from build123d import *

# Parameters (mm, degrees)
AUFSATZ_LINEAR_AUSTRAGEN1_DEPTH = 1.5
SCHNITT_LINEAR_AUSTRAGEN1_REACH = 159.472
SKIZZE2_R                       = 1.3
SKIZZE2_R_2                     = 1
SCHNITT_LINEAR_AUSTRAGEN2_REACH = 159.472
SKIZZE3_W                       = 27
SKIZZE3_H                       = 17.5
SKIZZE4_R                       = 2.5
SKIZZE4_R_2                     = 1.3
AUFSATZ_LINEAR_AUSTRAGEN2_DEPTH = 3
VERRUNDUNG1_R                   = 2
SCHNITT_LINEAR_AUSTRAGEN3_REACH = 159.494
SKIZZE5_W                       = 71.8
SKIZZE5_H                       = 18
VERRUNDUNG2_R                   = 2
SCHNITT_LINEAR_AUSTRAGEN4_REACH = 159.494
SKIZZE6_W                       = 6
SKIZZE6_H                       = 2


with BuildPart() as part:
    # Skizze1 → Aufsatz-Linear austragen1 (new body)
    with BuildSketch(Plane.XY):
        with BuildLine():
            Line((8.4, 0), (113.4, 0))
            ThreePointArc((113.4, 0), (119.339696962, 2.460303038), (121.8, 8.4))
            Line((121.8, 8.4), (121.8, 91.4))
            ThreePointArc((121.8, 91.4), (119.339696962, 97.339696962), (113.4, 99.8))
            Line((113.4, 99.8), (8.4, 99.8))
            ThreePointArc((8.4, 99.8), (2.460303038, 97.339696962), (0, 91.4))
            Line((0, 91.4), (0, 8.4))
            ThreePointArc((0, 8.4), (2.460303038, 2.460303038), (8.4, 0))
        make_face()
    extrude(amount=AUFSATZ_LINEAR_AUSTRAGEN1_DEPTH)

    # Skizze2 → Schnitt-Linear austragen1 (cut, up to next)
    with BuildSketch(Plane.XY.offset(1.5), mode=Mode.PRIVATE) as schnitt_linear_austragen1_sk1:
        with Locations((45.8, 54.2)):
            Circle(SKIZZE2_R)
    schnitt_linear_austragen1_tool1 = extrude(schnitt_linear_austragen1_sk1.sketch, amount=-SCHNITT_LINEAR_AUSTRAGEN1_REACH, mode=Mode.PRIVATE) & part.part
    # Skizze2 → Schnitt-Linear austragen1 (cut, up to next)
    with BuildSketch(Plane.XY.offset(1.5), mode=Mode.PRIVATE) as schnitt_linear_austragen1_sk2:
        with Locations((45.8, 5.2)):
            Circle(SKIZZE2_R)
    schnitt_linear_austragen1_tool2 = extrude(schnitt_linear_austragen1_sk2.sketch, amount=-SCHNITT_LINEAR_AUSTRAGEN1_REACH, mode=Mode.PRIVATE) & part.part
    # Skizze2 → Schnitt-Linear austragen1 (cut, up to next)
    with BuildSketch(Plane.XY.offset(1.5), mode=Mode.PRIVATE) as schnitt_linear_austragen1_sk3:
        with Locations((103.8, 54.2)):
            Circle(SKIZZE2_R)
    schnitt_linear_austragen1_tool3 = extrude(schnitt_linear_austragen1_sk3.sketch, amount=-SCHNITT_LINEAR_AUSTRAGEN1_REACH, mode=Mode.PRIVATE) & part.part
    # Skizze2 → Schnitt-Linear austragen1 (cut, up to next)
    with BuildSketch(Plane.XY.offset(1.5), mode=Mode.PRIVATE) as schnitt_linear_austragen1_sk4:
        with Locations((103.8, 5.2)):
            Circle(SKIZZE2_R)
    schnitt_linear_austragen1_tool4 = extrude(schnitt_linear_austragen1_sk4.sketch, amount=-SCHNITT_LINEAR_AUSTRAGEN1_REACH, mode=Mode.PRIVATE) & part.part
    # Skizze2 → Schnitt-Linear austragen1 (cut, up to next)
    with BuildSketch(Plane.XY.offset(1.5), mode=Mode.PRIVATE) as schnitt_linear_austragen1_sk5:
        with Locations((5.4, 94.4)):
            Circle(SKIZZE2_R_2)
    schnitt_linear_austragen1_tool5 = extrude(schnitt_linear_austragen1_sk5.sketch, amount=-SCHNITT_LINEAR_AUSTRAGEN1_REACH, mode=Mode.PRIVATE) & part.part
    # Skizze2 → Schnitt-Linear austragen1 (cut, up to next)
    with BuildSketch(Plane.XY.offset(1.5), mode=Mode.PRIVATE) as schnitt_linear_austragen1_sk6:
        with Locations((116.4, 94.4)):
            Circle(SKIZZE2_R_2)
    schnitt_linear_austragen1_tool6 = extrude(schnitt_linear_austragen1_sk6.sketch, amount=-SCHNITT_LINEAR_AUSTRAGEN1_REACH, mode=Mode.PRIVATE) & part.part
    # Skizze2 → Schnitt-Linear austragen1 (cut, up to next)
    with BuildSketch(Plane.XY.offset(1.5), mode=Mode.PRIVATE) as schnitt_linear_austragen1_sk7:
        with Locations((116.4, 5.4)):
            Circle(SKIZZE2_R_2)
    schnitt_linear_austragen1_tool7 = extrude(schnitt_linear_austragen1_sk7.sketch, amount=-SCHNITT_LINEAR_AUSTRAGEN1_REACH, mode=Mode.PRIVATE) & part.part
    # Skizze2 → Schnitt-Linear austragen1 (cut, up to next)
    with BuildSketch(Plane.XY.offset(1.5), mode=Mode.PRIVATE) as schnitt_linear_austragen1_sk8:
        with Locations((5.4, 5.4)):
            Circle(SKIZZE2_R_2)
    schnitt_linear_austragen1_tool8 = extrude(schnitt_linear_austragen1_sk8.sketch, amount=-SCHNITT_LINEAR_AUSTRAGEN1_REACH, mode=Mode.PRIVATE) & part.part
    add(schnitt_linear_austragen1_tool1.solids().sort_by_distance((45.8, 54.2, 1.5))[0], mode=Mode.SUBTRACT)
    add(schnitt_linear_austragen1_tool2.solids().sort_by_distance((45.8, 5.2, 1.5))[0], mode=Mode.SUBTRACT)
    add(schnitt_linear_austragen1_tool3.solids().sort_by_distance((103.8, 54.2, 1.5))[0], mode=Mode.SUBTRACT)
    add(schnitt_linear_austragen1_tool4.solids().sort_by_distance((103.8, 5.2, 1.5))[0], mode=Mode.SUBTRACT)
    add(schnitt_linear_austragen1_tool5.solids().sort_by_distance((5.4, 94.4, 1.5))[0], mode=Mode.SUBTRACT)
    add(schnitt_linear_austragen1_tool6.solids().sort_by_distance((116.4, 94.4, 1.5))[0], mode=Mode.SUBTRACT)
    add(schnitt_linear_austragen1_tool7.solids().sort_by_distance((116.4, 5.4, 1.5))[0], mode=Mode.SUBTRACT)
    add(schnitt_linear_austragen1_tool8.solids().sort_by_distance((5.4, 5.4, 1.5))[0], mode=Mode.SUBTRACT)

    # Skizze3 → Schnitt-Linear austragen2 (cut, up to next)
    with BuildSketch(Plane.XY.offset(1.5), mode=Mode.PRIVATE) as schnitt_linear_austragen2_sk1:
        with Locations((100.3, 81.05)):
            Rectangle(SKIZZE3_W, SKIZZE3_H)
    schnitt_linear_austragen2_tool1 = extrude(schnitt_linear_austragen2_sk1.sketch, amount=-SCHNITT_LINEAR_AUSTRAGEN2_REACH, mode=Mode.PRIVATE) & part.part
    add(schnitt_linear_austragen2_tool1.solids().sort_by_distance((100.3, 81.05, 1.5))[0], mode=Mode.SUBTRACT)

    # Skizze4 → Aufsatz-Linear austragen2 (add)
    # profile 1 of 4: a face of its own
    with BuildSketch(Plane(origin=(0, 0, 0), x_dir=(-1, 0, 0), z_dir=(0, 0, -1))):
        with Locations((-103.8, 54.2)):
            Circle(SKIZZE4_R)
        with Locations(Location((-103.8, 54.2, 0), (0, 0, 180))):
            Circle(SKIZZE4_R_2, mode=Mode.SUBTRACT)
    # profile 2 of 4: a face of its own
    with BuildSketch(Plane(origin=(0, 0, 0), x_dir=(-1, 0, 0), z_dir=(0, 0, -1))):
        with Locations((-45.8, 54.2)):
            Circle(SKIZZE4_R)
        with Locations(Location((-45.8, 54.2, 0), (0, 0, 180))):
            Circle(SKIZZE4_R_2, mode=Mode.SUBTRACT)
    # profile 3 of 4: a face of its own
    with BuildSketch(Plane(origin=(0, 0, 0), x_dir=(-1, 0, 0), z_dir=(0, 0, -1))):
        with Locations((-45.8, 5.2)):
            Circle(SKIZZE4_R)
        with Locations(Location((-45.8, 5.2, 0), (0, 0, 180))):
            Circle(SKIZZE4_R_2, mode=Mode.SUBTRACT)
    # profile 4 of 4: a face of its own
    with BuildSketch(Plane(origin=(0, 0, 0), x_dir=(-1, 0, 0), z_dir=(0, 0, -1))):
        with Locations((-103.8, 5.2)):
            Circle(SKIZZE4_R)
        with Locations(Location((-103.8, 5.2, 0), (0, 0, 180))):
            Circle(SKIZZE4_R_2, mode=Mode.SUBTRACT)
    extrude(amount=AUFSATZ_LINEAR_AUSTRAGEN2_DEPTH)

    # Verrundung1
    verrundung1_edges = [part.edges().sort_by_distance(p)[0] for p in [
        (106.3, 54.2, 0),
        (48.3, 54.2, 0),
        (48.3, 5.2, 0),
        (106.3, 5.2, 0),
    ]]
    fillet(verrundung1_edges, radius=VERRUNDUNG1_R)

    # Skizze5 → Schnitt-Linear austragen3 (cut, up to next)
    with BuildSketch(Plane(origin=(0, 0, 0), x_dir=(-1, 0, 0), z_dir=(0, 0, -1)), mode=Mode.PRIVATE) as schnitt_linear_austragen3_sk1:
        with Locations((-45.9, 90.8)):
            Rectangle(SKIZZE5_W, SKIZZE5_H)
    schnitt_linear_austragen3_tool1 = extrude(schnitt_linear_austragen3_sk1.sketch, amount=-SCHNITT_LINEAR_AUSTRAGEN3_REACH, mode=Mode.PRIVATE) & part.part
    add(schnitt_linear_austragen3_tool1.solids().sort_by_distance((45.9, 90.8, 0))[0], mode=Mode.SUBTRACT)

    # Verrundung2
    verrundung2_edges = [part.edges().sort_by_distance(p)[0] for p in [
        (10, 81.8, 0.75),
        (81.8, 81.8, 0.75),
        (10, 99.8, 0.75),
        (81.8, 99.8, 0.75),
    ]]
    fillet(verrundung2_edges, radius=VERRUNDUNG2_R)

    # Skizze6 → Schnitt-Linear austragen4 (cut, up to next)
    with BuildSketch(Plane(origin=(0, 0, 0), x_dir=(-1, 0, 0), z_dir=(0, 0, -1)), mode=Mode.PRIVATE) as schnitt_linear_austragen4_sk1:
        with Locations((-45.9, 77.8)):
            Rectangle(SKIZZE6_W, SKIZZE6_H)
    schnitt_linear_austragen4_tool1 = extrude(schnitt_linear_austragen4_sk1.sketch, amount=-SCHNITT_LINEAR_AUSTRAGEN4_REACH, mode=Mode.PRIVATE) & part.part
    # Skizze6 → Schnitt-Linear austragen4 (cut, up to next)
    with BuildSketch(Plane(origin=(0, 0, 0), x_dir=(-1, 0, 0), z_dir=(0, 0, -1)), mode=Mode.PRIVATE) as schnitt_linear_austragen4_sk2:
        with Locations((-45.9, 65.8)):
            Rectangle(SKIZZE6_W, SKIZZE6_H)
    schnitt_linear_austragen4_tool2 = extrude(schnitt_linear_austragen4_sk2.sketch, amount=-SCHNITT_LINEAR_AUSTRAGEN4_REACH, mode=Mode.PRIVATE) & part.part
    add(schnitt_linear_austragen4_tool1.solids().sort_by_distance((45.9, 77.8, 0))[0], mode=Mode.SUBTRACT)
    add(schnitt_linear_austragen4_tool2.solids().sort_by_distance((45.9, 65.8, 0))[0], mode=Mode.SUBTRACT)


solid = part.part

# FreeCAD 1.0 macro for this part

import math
import FreeCAD as App
import Part
import Sketcher

V = App.Vector
Q = App.Units.Quantity


def edges_at(feature, points):
    """Names of the edges that pass closest to the given points."""
    edges = feature.Shape.Edges
    near = lambda p: min(range(len(edges)), key=lambda i: edges[i].distToShape(Part.Vertex(*p))[0])
    return sorted({f"Edge{near(p) + 1}" for p in points})


def add_polygon(sketch, points):
    """Adds a closed chain of lines whose ends are joined by coincident constraints."""
    first, n = sketch.GeometryCount, len(points)
    for a, b in zip(points, points[1:] + points[:1]):
        sketch.addGeometry(Part.LineSegment(App.Vector(*a, 0), App.Vector(*b, 0)), False)
    for i in range(n):
        sketch.addConstraint(Sketcher.Constraint("Coincident", first + i, 2, first + (i + 1) % n, 1))

doc = App.newDocument("Part")
body = doc.addObject("PartDesign::Body", "Body")

# Sketch on XY plane
sketch1 = doc.addObject("Sketcher::SketchObject", "Sketch")
body.addObject(sketch1)
sketch1.AttachmentSupport = (doc.XY_Plane, [""])
sketch1.MapMode = "FlatFace"
sketch1.addGeometry(Part.LineSegment(V(8, 0, 0), V(113, 0, 0)), False)
sketch1.addGeometry(Part.ArcOfCircle(Part.Circle(V(113, 8, 0), V(0, 0, 1), 8), math.radians(-90), math.radians(0)), False)
sketch1.addGeometry(Part.LineSegment(V(122, 8, 0), V(122, 91, 0)), False)
sketch1.addGeometry(Part.ArcOfCircle(Part.Circle(V(113, 91, 0), V(0, 0, 1), 8), math.radians(0), math.radians(90)), False)
sketch1.addGeometry(Part.LineSegment(V(113, 100, 0), V(8, 100, 0)), False)
sketch1.addGeometry(Part.ArcOfCircle(Part.Circle(V(8, 91, 0), V(0, 0, 1), 8), math.radians(90), math.radians(180)), False)
sketch1.addGeometry(Part.LineSegment(V(0, 91, 0), V(0, 8, 0)), False)
sketch1.addGeometry(Part.ArcOfCircle(Part.Circle(V(8, 8, 0), V(0, 0, 1), 8), math.radians(180), math.radians(270)), False)
sketch1.addConstraint(Sketcher.Constraint("Tangent", 0, 2, 1, 1))
sketch1.addConstraint(Sketcher.Constraint("Tangent", 1, 2, 2, 1))
sketch1.addConstraint(Sketcher.Constraint("Tangent", 2, 2, 3, 1))
sketch1.addConstraint(Sketcher.Constraint("Tangent", 3, 2, 4, 1))
sketch1.addConstraint(Sketcher.Constraint("Tangent", 4, 2, 5, 1))
sketch1.addConstraint(Sketcher.Constraint("Tangent", 5, 2, 6, 1))
sketch1.addConstraint(Sketcher.Constraint("Tangent", 6, 2, 7, 1))
sketch1.addConstraint(Sketcher.Constraint("Tangent", 7, 2, 0, 1))
sketch1.addConstraint(Sketcher.Constraint("Horizontal", 0))
sketch1.addConstraint(Sketcher.Constraint("Vertical", 2))
sketch1.addConstraint(Sketcher.Constraint("Horizontal", 4))
sketch1.addConstraint(Sketcher.Constraint("Vertical", 6))
sketch1.addConstraint(Sketcher.Constraint("Equal", 1, 3))
sketch1.addConstraint(Sketcher.Constraint("Equal", 3, 5))
sketch1.addConstraint(Sketcher.Constraint("Equal", 5, 7))
sketch1.addConstraint(Sketcher.Constraint("PointOnObject", 0, 2, -1))
sketch1.addConstraint(Sketcher.Constraint("PointOnObject", 5, 2, -2))
sketch1.addConstraint(Sketcher.Constraint("Radius", 1, Q("8.4 mm")))
sketch1.addConstraint(Sketcher.Constraint("DistanceX", 0, 1, 0, 2, Q("105 mm")))
sketch1.addConstraint(Sketcher.Constraint("DistanceY", 2, 1, 2, 2, Q("83 mm")))
pad1 = doc.addObject("PartDesign::Pad", "Pad")
body.addObject(pad1)
pad1.Profile = sketch1
pad1.Length = 1.5

# Sketch on XY plane
sketch2 = doc.addObject("Sketcher::SketchObject", "Sketch001")
body.addObject(sketch2)
sketch2.AttachmentSupport = (doc.XY_Plane, [""])
sketch2.MapMode = "FlatFace"
sketch2.AttachmentOffset = App.Placement(V(0, 0, 1.5), App.Rotation())
sketch2.addGeometry(Part.Circle(V(45.8, 54.2, 0), V(0, 0, 1), 1.3), False)
sketch2.addConstraint(Sketcher.Constraint("Diameter", 0, Q("2.6 mm")))
sketch2.addConstraint(Sketcher.Constraint("DistanceX", -1, 1, 0, 3, Q("45.8 mm")))
sketch2.addConstraint(Sketcher.Constraint("DistanceY", -1, 1, 0, 3, Q("54.2 mm")))
pocket1 = doc.addObject("PartDesign::Pocket", "Pocket")
body.addObject(pocket1)
pocket1.Profile = sketch2
pocket1.Type = "UpToFirst"

# Sketch on XY plane
sketch3 = doc.addObject("Sketcher::SketchObject", "Sketch002")
body.addObject(sketch3)
sketch3.AttachmentSupport = (doc.XY_Plane, [""])
sketch3.MapMode = "FlatFace"
sketch3.AttachmentOffset = App.Placement(V(0, 0, 1.5), App.Rotation())
sketch3.addGeometry(Part.Circle(V(45.8, 5.2, 0), V(0, 0, 1), 1.3), False)
sketch3.addConstraint(Sketcher.Constraint("Diameter", 0, Q("2.6 mm")))
sketch3.addConstraint(Sketcher.Constraint("DistanceX", -1, 1, 0, 3, Q("45.8 mm")))
sketch3.addConstraint(Sketcher.Constraint("DistanceY", -1, 1, 0, 3, Q("5.2 mm")))
pocket2 = doc.addObject("PartDesign::Pocket", "Pocket001")
body.addObject(pocket2)
pocket2.Profile = sketch3
pocket2.Type = "UpToFirst"

# Sketch on XY plane
sketch4 = doc.addObject("Sketcher::SketchObject", "Sketch003")
body.addObject(sketch4)
sketch4.AttachmentSupport = (doc.XY_Plane, [""])
sketch4.MapMode = "FlatFace"
sketch4.AttachmentOffset = App.Placement(V(0, 0, 1.5), App.Rotation())
sketch4.addGeometry(Part.Circle(V(103.8, 54.2, 0), V(0, 0, 1), 1.3), False)
sketch4.addConstraint(Sketcher.Constraint("Diameter", 0, Q("2.6 mm")))
sketch4.addConstraint(Sketcher.Constraint("DistanceX", -1, 1, 0, 3, Q("103.8 mm")))
sketch4.addConstraint(Sketcher.Constraint("DistanceY", -1, 1, 0, 3, Q("54.2 mm")))
pocket3 = doc.addObject("PartDesign::Pocket", "Pocket002")
body.addObject(pocket3)
pocket3.Profile = sketch4
pocket3.Type = "UpToFirst"

# Sketch on XY plane
sketch5 = doc.addObject("Sketcher::SketchObject", "Sketch004")
body.addObject(sketch5)
sketch5.AttachmentSupport = (doc.XY_Plane, [""])
sketch5.MapMode = "FlatFace"
sketch5.AttachmentOffset = App.Placement(V(0, 0, 1.5), App.Rotation())
sketch5.addGeometry(Part.Circle(V(103.8, 5.2, 0), V(0, 0, 1), 1.3), False)
sketch5.addConstraint(Sketcher.Constraint("Diameter", 0, Q("2.6 mm")))
sketch5.addConstraint(Sketcher.Constraint("DistanceX", -1, 1, 0, 3, Q("103.8 mm")))
sketch5.addConstraint(Sketcher.Constraint("DistanceY", -1, 1, 0, 3, Q("5.2 mm")))
pocket4 = doc.addObject("PartDesign::Pocket", "Pocket003")
body.addObject(pocket4)
pocket4.Profile = sketch5
pocket4.Type = "UpToFirst"

# Sketch on XY plane
sketch6 = doc.addObject("Sketcher::SketchObject", "Sketch005")
body.addObject(sketch6)
sketch6.AttachmentSupport = (doc.XY_Plane, [""])
sketch6.MapMode = "FlatFace"
sketch6.AttachmentOffset = App.Placement(V(0, 0, 1.5), App.Rotation())
sketch6.addGeometry(Part.Circle(V(5.4, 94.4, 0), V(0, 0, 1), 1), False)
sketch6.addConstraint(Sketcher.Constraint("Diameter", 0, Q("2 mm")))
sketch6.addConstraint(Sketcher.Constraint("DistanceX", -1, 1, 0, 3, Q("5.4 mm")))
sketch6.addConstraint(Sketcher.Constraint("DistanceY", -1, 1, 0, 3, Q("94.4 mm")))
pocket5 = doc.addObject("PartDesign::Pocket", "Pocket004")
body.addObject(pocket5)
pocket5.Profile = sketch6
pocket5.Type = "UpToFirst"

# Sketch on XY plane
sketch7 = doc.addObject("Sketcher::SketchObject", "Sketch006")
body.addObject(sketch7)
sketch7.AttachmentSupport = (doc.XY_Plane, [""])
sketch7.MapMode = "FlatFace"
sketch7.AttachmentOffset = App.Placement(V(0, 0, 1.5), App.Rotation())
sketch7.addGeometry(Part.Circle(V(116.4, 94.4, 0), V(0, 0, 1), 1), False)
sketch7.addConstraint(Sketcher.Constraint("Diameter", 0, Q("2 mm")))
sketch7.addConstraint(Sketcher.Constraint("DistanceX", -1, 1, 0, 3, Q("116.4 mm")))
sketch7.addConstraint(Sketcher.Constraint("DistanceY", -1, 1, 0, 3, Q("94.4 mm")))
pocket6 = doc.addObject("PartDesign::Pocket", "Pocket005")
body.addObject(pocket6)
pocket6.Profile = sketch7
pocket6.Type = "UpToFirst"

# Sketch on XY plane
sketch8 = doc.addObject("Sketcher::SketchObject", "Sketch007")
body.addObject(sketch8)
sketch8.AttachmentSupport = (doc.XY_Plane, [""])
sketch8.MapMode = "FlatFace"
sketch8.AttachmentOffset = App.Placement(V(0, 0, 1.5), App.Rotation())
sketch8.addGeometry(Part.Circle(V(116.4, 5.4, 0), V(0, 0, 1), 1), False)
sketch8.addConstraint(Sketcher.Constraint("Diameter", 0, Q("2 mm")))
sketch8.addConstraint(Sketcher.Constraint("DistanceX", -1, 1, 0, 3, Q("116.4 mm")))
sketch8.addConstraint(Sketcher.Constraint("DistanceY", -1, 1, 0, 3, Q("5.4 mm")))
pocket7 = doc.addObject("PartDesign::Pocket", "Pocket006")
body.addObject(pocket7)
pocket7.Profile = sketch8
pocket7.Type = "UpToFirst"

# Sketch on XY plane
sketch9 = doc.addObject("Sketcher::SketchObject", "Sketch008")
body.addObject(sketch9)
sketch9.AttachmentSupport = (doc.XY_Plane, [""])
sketch9.MapMode = "FlatFace"
sketch9.AttachmentOffset = App.Placement(V(0, 0, 1.5), App.Rotation())
sketch9.addGeometry(Part.Circle(V(5.4, 5.4, 0), V(0, 0, 1), 1), False)
sketch9.addConstraint(Sketcher.Constraint("Diameter", 0, Q("2 mm")))
sketch9.addConstraint(Sketcher.Constraint("DistanceX", -1, 1, 0, 3, Q("5.4 mm")))
sketch9.addConstraint(Sketcher.Constraint("DistanceY", -1, 1, 0, 3, Q("5.4 mm")))
pocket8 = doc.addObject("PartDesign::Pocket", "Pocket007")
body.addObject(pocket8)
pocket8.Profile = sketch9
pocket8.Type = "UpToFirst"

# Sketch on XY plane
sketch10 = doc.addObject("Sketcher::SketchObject", "Sketch009")
body.addObject(sketch10)
sketch10.AttachmentSupport = (doc.XY_Plane, [""])
sketch10.MapMode = "FlatFace"
sketch10.AttachmentOffset = App.Placement(V(0, 0, 1.5), App.Rotation())
add_polygon(sketch10, [(87, 90), (87, 72), (114, 72), (114, 90)])  # lines 0-3
sketch10.addConstraint(Sketcher.Constraint("Vertical", 0))
sketch10.addConstraint(Sketcher.Constraint("Horizontal", 1))
sketch10.addConstraint(Sketcher.Constraint("Vertical", 2))
sketch10.addConstraint(Sketcher.Constraint("Horizontal", 3))
sketch10.addConstraint(Sketcher.Constraint("DistanceX", 1, 1, 1, 2, Q("27 mm")))
sketch10.addConstraint(Sketcher.Constraint("DistanceY", 0, 2, 0, 1, Q("17.5 mm")))
sketch10.addConstraint(Sketcher.Constraint("DistanceX", -1, 1, 0, 2, Q("86.8 mm")))
sketch10.addConstraint(Sketcher.Constraint("DistanceY", -1, 1, 0, 2, Q("72.3 mm")))
pocket9 = doc.addObject("PartDesign::Pocket", "Pocket008")
body.addObject(pocket9)
pocket9.Profile = sketch10
pocket9.Type = "UpToFirst"

# Sketch on XY plane
sketch11 = doc.addObject("Sketcher::SketchObject", "Sketch010")
body.addObject(sketch11)
sketch11.AttachmentSupport = (doc.XY_Plane, [""])
sketch11.MapMode = "FlatFace"
sketch11.addGeometry(Part.Circle(V(103.8, 54.2, 0), V(0, 0, 1), 2.5), False)
sketch11.addGeometry(Part.Circle(V(103.8, 54.2, 0), V(0, 0, 1), 1.3), False)
sketch11.addGeometry(Part.Circle(V(45.8, 54.2, 0), V(0, 0, 1), 2.5), False)
sketch11.addGeometry(Part.Circle(V(45.8, 54.2, 0), V(0, 0, 1), 1.3), False)
sketch11.addGeometry(Part.Circle(V(45.8, 5.2, 0), V(0, 0, 1), 2.5), False)
sketch11.addGeometry(Part.Circle(V(45.8, 5.2, 0), V(0, 0, 1), 1.3), False)
sketch11.addGeometry(Part.Circle(V(103.8, 5.2, 0), V(0, 0, 1), 2.5), False)
sketch11.addGeometry(Part.Circle(V(103.8, 5.2, 0), V(0, 0, 1), 1.3), False)
sketch11.addConstraint(Sketcher.Constraint("Coincident", 1, 3, 0, 3))
sketch11.addConstraint(Sketcher.Constraint("Coincident", 3, 3, 2, 3))
sketch11.addConstraint(Sketcher.Constraint("Coincident", 5, 3, 4, 3))
sketch11.addConstraint(Sketcher.Constraint("Coincident", 7, 3, 6, 3))
sketch11.addConstraint(Sketcher.Constraint("Equal", 0, 2))
sketch11.addConstraint(Sketcher.Constraint("Equal", 1, 3))
sketch11.addConstraint(Sketcher.Constraint("Equal", 2, 4))
sketch11.addConstraint(Sketcher.Constraint("Equal", 3, 5))
sketch11.addConstraint(Sketcher.Constraint("Equal", 4, 6))
sketch11.addConstraint(Sketcher.Constraint("Equal", 5, 7))
sketch11.addConstraint(Sketcher.Constraint("Horizontal", 1, 3, 2, 3))
sketch11.addConstraint(Sketcher.Constraint("Horizontal", 5, 3, 6, 3))
sketch11.addConstraint(Sketcher.Constraint("Vertical", 3, 3, 4, 3))
sketch11.addConstraint(Sketcher.Constraint("Vertical", 1, 3, 6, 3))
sketch11.addConstraint(Sketcher.Constraint("Diameter", 0, Q("5 mm")))
sketch11.addConstraint(Sketcher.Constraint("Diameter", 1, Q("2.6 mm")))
sketch11.addConstraint(Sketcher.Constraint("DistanceX", 2, 3, 0, 3, Q("58 mm")))
sketch11.addConstraint(Sketcher.Constraint("DistanceY", 4, 3, 2, 3, Q("49 mm")))
sketch11.addConstraint(Sketcher.Constraint("DistanceX", -1, 1, 0, 3, Q("103.8 mm")))
sketch11.addConstraint(Sketcher.Constraint("DistanceY", -1, 1, 0, 3, Q("54.2 mm")))
pad2 = doc.addObject("PartDesign::Pad", "Pad001")
body.addObject(pad2)
pad2.Profile = sketch11
pad2.Length = 3
pad2.Reversed = True
doc.recompute()

fillet = doc.addObject("PartDesign::Fillet", "Fillet")
body.addObject(fillet)
fillet.Base = (pad2, edges_at(pad2, [
    (106.3, 54.2, 0),
    (48.3, 54.2, 0),
    (48.3, 5.2, 0),
    (106.3, 5.2, 0),
]))
fillet.Radius = 2

# Sketch on XY plane
sketch12 = doc.addObject("Sketcher::SketchObject", "Sketch011")
body.addObject(sketch12)
sketch12.AttachmentSupport = (doc.XY_Plane, [""])
sketch12.MapMode = "FlatFace"
add_polygon(sketch12, [(82, 100), (82, 82), (10, 82), (10, 100)])  # lines 0-3
sketch12.addConstraint(Sketcher.Constraint("Vertical", 0))
sketch12.addConstraint(Sketcher.Constraint("Horizontal", 1))
sketch12.addConstraint(Sketcher.Constraint("Vertical", 2))
sketch12.addConstraint(Sketcher.Constraint("Horizontal", 3))
sketch12.addConstraint(Sketcher.Constraint("DistanceY", 0, 2, 0, 1, Q("18 mm")))
sketch12.addConstraint(Sketcher.Constraint("DistanceX", 1, 2, 1, 1, Q("71.8 mm")))
sketch12.addConstraint(Sketcher.Constraint("DistanceX", -1, 1, 1, 2, Q("10 mm")))
sketch12.addConstraint(Sketcher.Constraint("DistanceY", -1, 1, 0, 2, Q("81.8 mm")))
pocket10 = doc.addObject("PartDesign::Pocket", "Pocket009")
body.addObject(pocket10)
pocket10.Profile = sketch12
pocket10.Type = "UpToFirst"
pocket10.Reversed = True
doc.recompute()

fillet2 = doc.addObject("PartDesign::Fillet", "Fillet001")
body.addObject(fillet2)
fillet2.Base = (pocket10, edges_at(pocket10, [
    (10, 81.8, 0.75),
    (81.8, 81.8, 0.75),
    (10, 99.8, 0.75),
    (81.8, 99.8, 0.75),
]))
fillet2.Radius = 2

# Sketch on XY plane
sketch13 = doc.addObject("Sketcher::SketchObject", "Sketch012")
body.addObject(sketch13)
sketch13.AttachmentSupport = (doc.XY_Plane, [""])
sketch13.MapMode = "FlatFace"
add_polygon(sketch13, [(48.9, 78.8), (48.9, 76.8), (42.9, 76.8), (42.9, 78.8)])  # lines 0-3
sketch13.addConstraint(Sketcher.Constraint("Vertical", 0))
sketch13.addConstraint(Sketcher.Constraint("Horizontal", 1))
sketch13.addConstraint(Sketcher.Constraint("Vertical", 2))
sketch13.addConstraint(Sketcher.Constraint("Horizontal", 3))
sketch13.addConstraint(Sketcher.Constraint("DistanceX", 1, 2, 1, 1, Q("6 mm")))
sketch13.addConstraint(Sketcher.Constraint("DistanceY", 0, 2, 0, 1, Q("2 mm")))
sketch13.addConstraint(Sketcher.Constraint("DistanceX", -1, 1, 0, 2, Q("48.9 mm")))
sketch13.addConstraint(Sketcher.Constraint("DistanceY", -1, 1, 0, 2, Q("76.8 mm")))
pocket11 = doc.addObject("PartDesign::Pocket", "Pocket010")
body.addObject(pocket11)
pocket11.Profile = sketch13
pocket11.Type = "UpToFirst"
pocket11.Reversed = True

# Sketch on XY plane
sketch14 = doc.addObject("Sketcher::SketchObject", "Sketch013")
body.addObject(sketch14)
sketch14.AttachmentSupport = (doc.XY_Plane, [""])
sketch14.MapMode = "FlatFace"
add_polygon(sketch14, [(48.9, 66.8), (48.9, 64.8), (42.9, 64.8), (42.9, 66.8)])  # lines 0-3
sketch14.addConstraint(Sketcher.Constraint("Vertical", 0))
sketch14.addConstraint(Sketcher.Constraint("Horizontal", 1))
sketch14.addConstraint(Sketcher.Constraint("Vertical", 2))
sketch14.addConstraint(Sketcher.Constraint("Horizontal", 3))
sketch14.addConstraint(Sketcher.Constraint("DistanceX", 1, 2, 1, 1, Q("6 mm")))
sketch14.addConstraint(Sketcher.Constraint("DistanceY", 0, 2, 0, 1, Q("2 mm")))
sketch14.addConstraint(Sketcher.Constraint("DistanceX", -1, 1, 0, 2, Q("48.9 mm")))
sketch14.addConstraint(Sketcher.Constraint("DistanceY", -1, 1, 0, 2, Q("64.8 mm")))
pocket12 = doc.addObject("PartDesign::Pocket", "Pocket011")
body.addObject(pocket12)
pocket12.Profile = sketch14
pocket12.Type = "UpToFirst"
pocket12.Reversed = True

doc.recompute()
